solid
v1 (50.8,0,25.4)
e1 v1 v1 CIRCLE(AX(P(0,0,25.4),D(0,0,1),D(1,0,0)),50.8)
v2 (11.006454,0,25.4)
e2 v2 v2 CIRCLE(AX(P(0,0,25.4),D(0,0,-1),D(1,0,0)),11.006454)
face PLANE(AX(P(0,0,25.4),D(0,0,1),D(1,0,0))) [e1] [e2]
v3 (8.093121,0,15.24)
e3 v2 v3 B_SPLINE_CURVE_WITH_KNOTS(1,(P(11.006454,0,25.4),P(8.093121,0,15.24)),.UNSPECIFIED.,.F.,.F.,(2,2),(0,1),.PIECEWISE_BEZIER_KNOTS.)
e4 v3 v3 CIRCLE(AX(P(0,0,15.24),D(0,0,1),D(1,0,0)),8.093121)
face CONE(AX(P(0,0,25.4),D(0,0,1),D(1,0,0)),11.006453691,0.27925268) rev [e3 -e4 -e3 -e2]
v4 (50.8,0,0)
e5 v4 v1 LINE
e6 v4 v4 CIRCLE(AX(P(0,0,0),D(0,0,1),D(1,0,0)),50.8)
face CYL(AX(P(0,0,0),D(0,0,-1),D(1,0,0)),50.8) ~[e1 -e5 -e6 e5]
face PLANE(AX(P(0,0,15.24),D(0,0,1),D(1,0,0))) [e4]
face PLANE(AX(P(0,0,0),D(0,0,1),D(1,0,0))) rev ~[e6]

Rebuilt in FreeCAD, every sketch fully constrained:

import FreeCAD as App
import Part
import Sketcher
Q = App.Units.Quantity

doc = App.newDocument("Part")
body = doc.addObject("PartDesign::Body", "Body")

# Sketch on XY plane
sketch1 = body.newObject("Sketcher::SketchObject", "Sketch")
sketch1.AttachmentSupport = (doc.getObject("XY_Plane"), [""])
sketch1.MapMode = "FlatFace"
sketch1.addGeometry(Part.Circle(App.Vector(0, 0, 0), App.Vector(0, 0, 1), 51), False)
sketch1.addConstraint([
    Sketcher.Constraint("Coincident", 0, 3, -1, 1),
    Sketcher.Constraint("Diameter", 0, Q("4 in")),
])
pad1 = body.newObject("PartDesign::Pad", "Pad")
pad1.Profile = sketch1
pad1.Length = Q("1 in")

# Sketch on XY plane
sketch2 = body.newObject("Sketcher::SketchObject", "Sketch001")
sketch2.AttachmentSupport = (doc.getObject("XY_Plane"), [""])
sketch2.MapMode = "FlatFace"
sketch2.AttachmentOffset = App.Placement(App.Vector(0, 0, 1 * 25.4), App.Rotation())
sketch2.addGeometry(Part.Circle(App.Vector(0, 0, 0), App.Vector(0, 0, 1), 11), False)
sketch2.addConstraint([
    Sketcher.Constraint("Coincident", 0, 3, -1, 1),
    Sketcher.Constraint("Diameter", 0, Q("22.012907 mm")),
])
pocket1 = body.newObject("PartDesign::Pocket", "Pocket")
pocket1.Profile = sketch2
pocket1.Length = Q("0.4 in")
pocket1.TaperAngle = -16

doc.recompute()
